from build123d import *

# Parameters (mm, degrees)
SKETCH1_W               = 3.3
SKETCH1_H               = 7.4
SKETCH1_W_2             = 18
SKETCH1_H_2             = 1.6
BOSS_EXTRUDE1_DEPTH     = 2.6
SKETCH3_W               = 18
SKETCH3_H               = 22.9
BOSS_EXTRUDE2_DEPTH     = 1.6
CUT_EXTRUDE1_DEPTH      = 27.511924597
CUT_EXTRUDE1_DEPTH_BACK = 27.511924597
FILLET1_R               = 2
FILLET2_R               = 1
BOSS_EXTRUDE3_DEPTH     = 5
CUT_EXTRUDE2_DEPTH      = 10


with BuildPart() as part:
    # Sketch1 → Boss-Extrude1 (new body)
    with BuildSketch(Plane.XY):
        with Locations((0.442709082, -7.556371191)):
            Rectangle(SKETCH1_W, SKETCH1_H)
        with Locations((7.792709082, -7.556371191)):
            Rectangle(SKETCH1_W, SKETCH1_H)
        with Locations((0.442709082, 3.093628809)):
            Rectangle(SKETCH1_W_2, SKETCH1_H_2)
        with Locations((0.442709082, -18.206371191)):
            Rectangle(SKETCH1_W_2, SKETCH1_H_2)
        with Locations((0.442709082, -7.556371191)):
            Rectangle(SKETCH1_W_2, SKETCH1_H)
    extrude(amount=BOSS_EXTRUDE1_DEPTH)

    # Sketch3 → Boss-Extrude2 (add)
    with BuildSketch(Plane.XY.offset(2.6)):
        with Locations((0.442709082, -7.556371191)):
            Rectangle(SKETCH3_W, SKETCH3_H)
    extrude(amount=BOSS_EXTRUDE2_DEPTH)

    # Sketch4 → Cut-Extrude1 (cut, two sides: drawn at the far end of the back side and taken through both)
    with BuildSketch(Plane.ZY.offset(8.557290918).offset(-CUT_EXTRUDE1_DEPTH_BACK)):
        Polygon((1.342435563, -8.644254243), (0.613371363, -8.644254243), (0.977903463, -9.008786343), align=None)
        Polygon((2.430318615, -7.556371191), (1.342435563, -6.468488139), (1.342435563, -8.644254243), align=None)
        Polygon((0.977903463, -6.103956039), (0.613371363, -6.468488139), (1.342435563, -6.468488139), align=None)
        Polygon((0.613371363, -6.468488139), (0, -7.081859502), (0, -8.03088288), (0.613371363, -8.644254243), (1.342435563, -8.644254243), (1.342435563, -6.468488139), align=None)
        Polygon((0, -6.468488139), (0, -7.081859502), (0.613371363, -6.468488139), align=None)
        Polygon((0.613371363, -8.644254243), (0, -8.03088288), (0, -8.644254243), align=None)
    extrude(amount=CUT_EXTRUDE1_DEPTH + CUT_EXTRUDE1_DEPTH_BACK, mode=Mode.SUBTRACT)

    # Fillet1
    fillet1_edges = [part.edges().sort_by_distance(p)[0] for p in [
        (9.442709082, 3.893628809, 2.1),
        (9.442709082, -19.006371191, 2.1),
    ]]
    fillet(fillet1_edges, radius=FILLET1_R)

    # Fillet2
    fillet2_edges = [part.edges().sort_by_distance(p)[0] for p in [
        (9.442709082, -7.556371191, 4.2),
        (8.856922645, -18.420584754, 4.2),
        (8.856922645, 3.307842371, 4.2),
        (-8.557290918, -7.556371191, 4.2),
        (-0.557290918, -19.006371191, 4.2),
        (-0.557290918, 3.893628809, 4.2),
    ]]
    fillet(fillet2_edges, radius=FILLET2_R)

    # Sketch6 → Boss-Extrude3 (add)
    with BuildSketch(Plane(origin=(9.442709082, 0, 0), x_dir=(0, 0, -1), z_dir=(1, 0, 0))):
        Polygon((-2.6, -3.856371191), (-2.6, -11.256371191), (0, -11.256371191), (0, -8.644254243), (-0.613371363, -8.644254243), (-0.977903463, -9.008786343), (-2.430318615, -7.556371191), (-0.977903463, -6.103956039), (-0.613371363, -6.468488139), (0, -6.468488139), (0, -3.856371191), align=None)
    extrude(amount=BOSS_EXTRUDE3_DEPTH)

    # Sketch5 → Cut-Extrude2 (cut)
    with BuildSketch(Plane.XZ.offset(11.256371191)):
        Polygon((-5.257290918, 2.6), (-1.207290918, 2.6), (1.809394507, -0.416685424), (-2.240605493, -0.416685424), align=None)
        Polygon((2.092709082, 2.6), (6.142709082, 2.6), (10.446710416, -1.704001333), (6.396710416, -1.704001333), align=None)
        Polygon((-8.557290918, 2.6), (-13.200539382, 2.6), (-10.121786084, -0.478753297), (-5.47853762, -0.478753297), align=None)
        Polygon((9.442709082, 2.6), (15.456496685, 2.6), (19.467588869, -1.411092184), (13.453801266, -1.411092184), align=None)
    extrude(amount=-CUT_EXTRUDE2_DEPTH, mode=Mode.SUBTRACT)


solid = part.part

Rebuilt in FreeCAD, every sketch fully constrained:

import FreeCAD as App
import Part
import Sketcher
Q = App.Units.Quantity


def edges_at(feature, points):
    """Names of the edges that pass closest to the given points."""
    edges = feature.Shape.Edges
    near = lambda p: min(range(len(edges)), key=lambda i: edges[i].distToShape(Part.Vertex(*p))[0])
    return sorted({f"Edge{near(p) + 1}" for p in points})

doc = App.newDocument("Part")
body = doc.addObject("PartDesign::Body", "Body")
body.AllowCompound = True

# Sketch on XY plane
sketch1 = doc.addObject("Sketcher::SketchObject", "Sketch")
body.addObject(sketch1)
sketch1.AttachmentSupport = (doc.XY_Plane, [""])
sketch1.MapMode = "FlatFace"
sketch1.addGeometry([
    Part.LineSegment(App.Vector(9.4, -11.3, 0), App.Vector(9.4, -3.9, 0)),  # 0
    Part.LineSegment(App.Vector(9.4, -3.9, 0), App.Vector(-8.6, -3.9, 0)),  # 1
    Part.LineSegment(App.Vector(-8.6, -3.9, 0), App.Vector(-8.6, -11.3, 0)),  # 2
    Part.LineSegment(App.Vector(-8.6, -11.3, 0), App.Vector(9.4, -11.3, 0)),  # 3
    Part.LineSegment(App.Vector(-8.6, 3.9, 0), App.Vector(-8.6, 2.3, 0)),  # 4
    Part.LineSegment(App.Vector(-8.6, 2.3, 0), App.Vector(9.4, 2.3, 0)),  # 5
    Part.LineSegment(App.Vector(9.4, 2.3, 0), App.Vector(9.4, 3.9, 0)),  # 6
    Part.LineSegment(App.Vector(9.4, 3.9, 0), App.Vector(-8.6, 3.9, 0)),  # 7
    Part.LineSegment(App.Vector(-8.6, -17.4, 0), App.Vector(-8.6, -19, 0)),  # 8
    Part.LineSegment(App.Vector(-8.6, -19, 0), App.Vector(9.4, -19, 0)),  # 9
    Part.LineSegment(App.Vector(9.4, -19, 0), App.Vector(9.4, -17.4, 0)),  # 10
    Part.LineSegment(App.Vector(9.4, -17.4, 0), App.Vector(-8.6, -17.4, 0)),  # 11
], False)
sketch1.addConstraint([
    Sketcher.Constraint("Coincident", 0, 2, 1, 1),
    Sketcher.Constraint("Coincident", 1, 2, 2, 1),
    Sketcher.Constraint("Coincident", 2, 2, 3, 1),
    Sketcher.Constraint("Coincident", 3, 2, 0, 1),
    Sketcher.Constraint("Coincident", 4, 2, 5, 1),
    Sketcher.Constraint("Coincident", 5, 2, 6, 1),
    Sketcher.Constraint("Coincident", 6, 2, 7, 1),
    Sketcher.Constraint("Coincident", 7, 2, 4, 1),
    Sketcher.Constraint("Coincident", 8, 2, 9, 1),
    Sketcher.Constraint("Coincident", 9, 2, 10, 1),
    Sketcher.Constraint("Coincident", 10, 2, 11, 1),
    Sketcher.Constraint("Coincident", 11, 2, 8, 1),
    Sketcher.Constraint("Vertical", 0),
    Sketcher.Constraint("Horizontal", 1),
    Sketcher.Constraint("Vertical", 2),
    Sketcher.Constraint("Horizontal", 3),
    Sketcher.Constraint("Vertical", 4),
    Sketcher.Constraint("Horizontal", 5),
    Sketcher.Constraint("Vertical", 6),
    Sketcher.Constraint("Horizontal", 7),
    Sketcher.Constraint("Vertical", 8),
    Sketcher.Constraint("Horizontal", 9),
    Sketcher.Constraint("Vertical", 10),
    Sketcher.Constraint("Horizontal", 11),
    Sketcher.Constraint("Vertical", 2, 2, 4, 2),
    Sketcher.Constraint("Vertical", 3, 2, 5, 2),
    Sketcher.Constraint("Vertical", 7, 2, 8, 2),
    Sketcher.Constraint("Vertical", 6, 2, 9, 2),
    Sketcher.Constraint("Equal", 6, 8),
    Sketcher.Constraint("DistanceX", 1, 2, 1, 1, Q("18 mm")),
    Sketcher.Constraint("DistanceY", 0, 1, 0, 2, Q("7.4 mm")),
    Sketcher.Constraint("DistanceY", 4, 2, 4, 1, Q("1.6 mm")),
    Sketcher.Constraint("DistanceY", 8, 2, 4, 2, Q("21.3 mm")),
    Sketcher.Constraint("DistanceY", 1, 2, 4, 2, Q("6.15 mm")),
    Sketcher.Constraint("DistanceX", -1, 1, 0, 2, Q("9.442709 mm")),
    Sketcher.Constraint("DistanceY", 0, 2, -1, 1, Q("3.856371 mm")),
])
pad1 = doc.addObject("PartDesign::Pad", "Pad")
body.addObject(pad1)
pad1.Profile = sketch1
pad1.Length = 2.6

# Sketch on XY plane
sketch2 = doc.addObject("Sketcher::SketchObject", "Sketch001")
body.addObject(sketch2)
sketch2.AttachmentSupport = (doc.XY_Plane, [""])
sketch2.MapMode = "FlatFace"
sketch2.AttachmentOffset = App.Placement(App.Vector(0, 0, 2.6), App.Rotation())
sketch2.addGeometry([
    Part.LineSegment(App.Vector(-9, 4, 0), App.Vector(-9, -19, 0)),
    Part.LineSegment(App.Vector(-9, -19, 0), App.Vector(9, -19, 0)),
    Part.LineSegment(App.Vector(9, -19, 0), App.Vector(9, 4, 0)),
    Part.LineSegment(App.Vector(9, 4, 0), App.Vector(-9, 4, 0)),
], False)
sketch2.addConstraint([
    Sketcher.Constraint("Coincident", 0, 2, 1, 1),
    Sketcher.Constraint("Coincident", 1, 2, 2, 1),
    Sketcher.Constraint("Coincident", 2, 2, 3, 1),
    Sketcher.Constraint("Coincident", 3, 2, 0, 1),
    Sketcher.Constraint("Vertical", 0),
    Sketcher.Constraint("Horizontal", 1),
    Sketcher.Constraint("Vertical", 2),
    Sketcher.Constraint("Horizontal", 3),
    Sketcher.Constraint("DistanceX", 1, 1, 1, 2, Q("18 mm")),
    Sketcher.Constraint("DistanceY", 0, 2, 0, 1, Q("22.9 mm")),
    Sketcher.Constraint("DistanceX", 0, 2, -1, 1, Q("8.557291 mm")),
    Sketcher.Constraint("DistanceY", 0, 2, -1, 1, Q("19.006371 mm")),
])
pad2 = doc.addObject("PartDesign::Pad", "Pad001")
body.addObject(pad2)
pad2.Profile = sketch2
pad2.Length = 1.6

# Sketch on YZ plane
sketch3 = doc.addObject("Sketcher::SketchObject", "Sketch002")
body.addObject(sketch3)
sketch3.AttachmentSupport = (doc.YZ_Plane, [""])
sketch3.MapMode = "FlatFace"
sketch3.AttachmentOffset = App.Placement(App.Vector(0, 0, -8.557291), App.Rotation())
sketch3.addGeometry([
    Part.LineSegment(App.Vector(-9, 1, 0), App.Vector(-7.6, 2.4, 0)),  # 0
    Part.LineSegment(App.Vector(-7.6, 2.4, 0), App.Vector(-6.1, 1, 0)),  # 1
    Part.LineSegment(App.Vector(-6.1, 1, 0), App.Vector(-6.5, 0.6, 0)),  # 2
    Part.LineSegment(App.Vector(-6.5, 0.6, 0), App.Vector(-6.5, 0, 0)),  # 3
    Part.LineSegment(App.Vector(-6.5, 0, 0), App.Vector(-8.6, 0, 0)),  # 4
    Part.LineSegment(App.Vector(-8.6, 0, 0), App.Vector(-8.6, 0.6, 0)),  # 5
    Part.LineSegment(App.Vector(-8.6, 0.6, 0), App.Vector(-9, 1, 0)),  # 6
], False)
sketch3.addConstraint([
    Sketcher.Constraint("Coincident", 0, 2, 1, 1),
    Sketcher.Constraint("Coincident", 1, 2, 2, 1),
    Sketcher.Constraint("Coincident", 2, 2, 3, 1),
    Sketcher.Constraint("Coincident", 3, 2, 4, 1),
    Sketcher.Constraint("Coincident", 4, 2, 5, 1),
    Sketcher.Constraint("Coincident", 5, 2, 6, 1),
    Sketcher.Constraint("Coincident", 6, 2, 0, 1),
    Sketcher.Constraint("Vertical", 3),
    Sketcher.Constraint("Horizontal", 4),
    Sketcher.Constraint("Vertical", 5),
    Sketcher.Constraint("PointOnObject", 3, 2, -1),
    Sketcher.Constraint("Perpendicular", 0, 1),
    Sketcher.Constraint("Perpendicular", 1, 2),
    Sketcher.Constraint("Perpendicular", 2, 6),
    Sketcher.Constraint("Horizontal", 2, 2, 5, 2),
    Sketcher.Constraint("Horizontal", 1, 2, 6, 2),
    Sketcher.Constraint("Equal", 0, 1),
    Sketcher.Constraint("DistanceY", 3, 2, 3, 1, Q("0.613371 mm")),
    Sketcher.Constraint("DistanceX", 4, 2, 1, 2, Q("2.540298 mm")),
    Sketcher.Constraint("DistanceX", 4, 2, 4, 1, Q("2.175766 mm")),
    Sketcher.Constraint("DistanceX", 0, 2, -1, 1, Q("7.556371 mm")),
])
pocket1 = doc.addObject("PartDesign::Pocket", "Pocket")
body.addObject(pocket1)
pocket1.Profile = sketch3
pocket1.Type = "ThroughAll"
pocket1.Midplane = True
doc.recompute()

fillet = doc.addObject("PartDesign::Fillet", "Fillet")
body.addObject(fillet)
fillet.Base = (pocket1, edges_at(pocket1, [(9.443, 3.894, 2.1), (9.443, -19.006, 2.1)]))
fillet.Radius = 2
doc.recompute()

fillet2 = doc.addObject("PartDesign::Fillet", "Fillet001")
body.addObject(fillet2)
fillet2.Base = (fillet, edges_at(fillet, [
    (9.443, -7.556, 4.2),
    (8.857, -18.421, 4.2),
    (8.857, 3.308, 4.2),
    (-8.557, -7.556, 4.2),
    (-0.557, -19.006, 4.2),
    (-0.557, 3.894, 4.2),
]))
fillet2.Radius = 1

# Sketch on YZ plane
sketch4 = doc.addObject("Sketcher::SketchObject", "Sketch003")
body.addObject(sketch4)
sketch4.AttachmentSupport = (doc.YZ_Plane, [""])
sketch4.MapMode = "FlatFace"
sketch4.AttachmentOffset = App.Placement(App.Vector(0, 0, 9.442709), App.Rotation())
sketch4.addGeometry([
    Part.LineSegment(App.Vector(-3.9, 2.6, 0), App.Vector(-11.3, 2.6, 0)),  # 0
    Part.LineSegment(App.Vector(-11.3, 2.6, 0), App.Vector(-11.3, 0, 0)),  # 1
    Part.LineSegment(App.Vector(-11.3, 0, 0), App.Vector(-8.6, 0, 0)),  # 2
    Part.LineSegment(App.Vector(-8.6, 0, 0), App.Vector(-8.6, 0.6, 0)),  # 3
    Part.LineSegment(App.Vector(-8.6, 0.6, 0), App.Vector(-9, 1, 0)),  # 4
    Part.LineSegment(App.Vector(-9, 1, 0), App.Vector(-7.6, 2.4, 0)),  # 5
    Part.LineSegment(App.Vector(-7.6, 2.4, 0), App.Vector(-6.1, 1, 0)),  # 6
    Part.LineSegment(App.Vector(-6.1, 1, 0), App.Vector(-6.5, 0.6, 0)),  # 7
    Part.LineSegment(App.Vector(-6.5, 0.6, 0), App.Vector(-6.5, 0, 0)),  # 8
    Part.LineSegment(App.Vector(-6.5, 0, 0), App.Vector(-3.9, 0, 0)),  # 9
    Part.LineSegment(App.Vector(-3.9, 0, 0), App.Vector(-3.9, 2.6, 0)),  # 10
], False)
sketch4.addConstraint([
    Sketcher.Constraint("Coincident", 0, 2, 1, 1),
    Sketcher.Constraint("Coincident", 1, 2, 2, 1),
    Sketcher.Constraint("Coincident", 2, 2, 3, 1),
    Sketcher.Constraint("Coincident", 3, 2, 4, 1),
    Sketcher.Constraint("Coincident", 4, 2, 5, 1),
    Sketcher.Constraint("Coincident", 5, 2, 6, 1),
    Sketcher.Constraint("Coincident", 6, 2, 7, 1),
    Sketcher.Constraint("Coincident", 7, 2, 8, 1),
    Sketcher.Constraint("Coincident", 8, 2, 9, 1),
    Sketcher.Constraint("Coincident", 9, 2, 10, 1),
    Sketcher.Constraint("Coincident", 10, 2, 0, 1),
    Sketcher.Constraint("Horizontal", 0),
    Sketcher.Constraint("Vertical", 1),
    Sketcher.Constraint("Horizontal", 2),
    Sketcher.Constraint("Vertical", 3),
    Sketcher.Constraint("Vertical", 8),
    Sketcher.Constraint("Horizontal", 9),
    Sketcher.Constraint("Vertical", 10),
    Sketcher.Constraint("PointOnObject", 1, 2, -1),
    Sketcher.Constraint("PointOnObject", 8, 2, -1),
    Sketcher.Constraint("Perpendicular", 4, 5),
    Sketcher.Constraint("Perpendicular", 5, 6),
    Sketcher.Constraint("Perpendicular", 6, 7),
    Sketcher.Constraint("Horizontal", 4, 2, 6, 2),
    Sketcher.Constraint("Horizontal", 3, 2, 7, 2),
    Sketcher.Constraint("Equal", 2, 9),
    Sketcher.Constraint("Equal", 5, 6),
    Sketcher.Constraint("DistanceX", 0, 2, 0, 1, Q("7.4 mm")),
    Sketcher.Constraint("DistanceY", 1, 2, 1, 1, Q("2.6 mm")),
    Sketcher.Constraint("DistanceY", 3, 1, 3, 2, Q("0.613371 mm")),
    Sketcher.Constraint("DistanceX", 3, 2, 6, 2, Q("2.540298 mm")),
    Sketcher.Constraint("DistanceX", 2, 1, 2, 2, Q("2.612117 mm")),
    Sketcher.Constraint("DistanceX", 0, 2, -1, 1, Q("11.256371 mm")),
])
pad3 = doc.addObject("PartDesign::Pad", "Pad002")
body.addObject(pad3)
pad3.Profile = sketch4
pad3.Length = 5

# Sketch on XZ plane
sketch5 = doc.addObject("Sketcher::SketchObject", "Sketch004")
body.addObject(sketch5)
sketch5.AttachmentSupport = (doc.XZ_Plane, [""])
sketch5.MapMode = "FlatFace"
sketch5.AttachmentOffset = App.Placement(App.Vector(0, 0, 11.256371), App.Rotation())
sketch5.addGeometry([
    Part.LineSegment(App.Vector(-1.2, 2.6, 0), App.Vector(-5.3, 2.6, 0)),  # 0
    Part.LineSegment(App.Vector(-5.3, 2.6, 0), App.Vector(-2.2, -0.4, 0)),  # 1
    Part.LineSegment(App.Vector(-2.2, -0.4, 0), App.Vector(1.8, -0.4, 0)),  # 2
    Part.LineSegment(App.Vector(1.8, -0.4, 0), App.Vector(-1.2, 2.6, 0)),  # 3
    Part.LineSegment(App.Vector(6.1, 2.6, 0), App.Vector(2.1, 2.6, 0)),  # 4
    Part.LineSegment(App.Vector(2.1, 2.6, 0), App.Vector(6.4, -1.7, 0)),  # 5
    Part.LineSegment(App.Vector(6.4, -1.7, 0), App.Vector(10.4, -1.7, 0)),  # 6
    Part.LineSegment(App.Vector(10.4, -1.7, 0), App.Vector(6.1, 2.6, 0)),  # 7
    Part.LineSegment(App.Vector(-8.6, 2.6, 0), App.Vector(-13.2, 2.6, 0)),  # 8
    Part.LineSegment(App.Vector(-13.2, 2.6, 0), App.Vector(-10.1, -0.5, 0)),  # 9
    Part.LineSegment(App.Vector(-10.1, -0.5, 0), App.Vector(-5.5, -0.5, 0)),  # 10
    Part.LineSegment(App.Vector(-5.5, -0.5, 0), App.Vector(-8.6, 2.6, 0)),  # 11
    Part.LineSegment(App.Vector(15.5, 2.6, 0), App.Vector(9.4, 2.6, 0)),  # 12
    Part.LineSegment(App.Vector(9.4, 2.6, 0), App.Vector(13.5, -1.4, 0)),  # 13
    Part.LineSegment(App.Vector(13.5, -1.4, 0), App.Vector(19.5, -1.4, 0)),  # 14
    Part.LineSegment(App.Vector(19.5, -1.4, 0), App.Vector(15.5, 2.6, 0)),  # 15
], False)
sketch5.addConstraint([
    Sketcher.Constraint("Coincident", 0, 2, 1, 1),
    Sketcher.Constraint("Coincident", 1, 2, 2, 1),
    Sketcher.Constraint("Coincident", 2, 2, 3, 1),
    Sketcher.Constraint("Coincident", 3, 2, 0, 1),
    Sketcher.Constraint("Coincident", 4, 2, 5, 1),
    Sketcher.Constraint("Coincident", 5, 2, 6, 1),
    Sketcher.Constraint("Coincident", 6, 2, 7, 1),
    Sketcher.Constraint("Coincident", 7, 2, 4, 1),
    Sketcher.Constraint("Coincident", 8, 2, 9, 1),
    Sketcher.Constraint("Coincident", 9, 2, 10, 1),
    Sketcher.Constraint("Coincident", 10, 2, 11, 1),
    Sketcher.Constraint("Coincident", 11, 2, 8, 1),
    Sketcher.Constraint("Coincident", 12, 2, 13, 1),
    Sketcher.Constraint("Coincident", 13, 2, 14, 1),
    Sketcher.Constraint("Coincident", 14, 2, 15, 1),
    Sketcher.Constraint("Coincident", 15, 2, 12, 1),
    Sketcher.Constraint("Horizontal", 0),
    Sketcher.Constraint("Horizontal", 2),
    Sketcher.Constraint("Horizontal", 4),
    Sketcher.Constraint("Horizontal", 6),
    Sketcher.Constraint("Horizontal", 8),
    Sketcher.Constraint("Horizontal", 10),
    Sketcher.Constraint("Horizontal", 12),
    Sketcher.Constraint("Horizontal", 14),
    Sketcher.Constraint("Parallel", 1, 3),
    Sketcher.Constraint("Parallel", 3, 5),
    Sketcher.Constraint("Parallel", 5, 7),
    Sketcher.Constraint("Parallel", 7, 9),
    Sketcher.Constraint("Parallel", 9, 11),
    Sketcher.Constraint("Parallel", 11, 13),
    Sketcher.Constraint("Parallel", 13, 15),
    Sketcher.Constraint("Horizontal", 3, 2, 4, 2),
    Sketcher.Constraint("Horizontal", 7, 2, 8, 2),
    Sketcher.Constraint("Horizontal", 11, 2, 12, 2),
    Sketcher.Constraint("Equal", 2, 4),
    Sketcher.Constraint("Angle", 1, Q("-45 deg")),
    Sketcher.Constraint("DistanceX", 0, 2, 0, 1, Q("4.05 mm")),
    Sketcher.Constraint("DistanceY", -1, 1, 0, 2, Q("2.6 mm")),
    Sketcher.Constraint("DistanceX", 3, 2, 4, 2, Q("3.3 mm")),
    Sketcher.Constraint("DistanceX", 11, 2, 0, 2, Q("3.3 mm")),
    Sketcher.Constraint("DistanceX", 7, 2, 12, 2, Q("3.3 mm")),
    Sketcher.Constraint("DistanceY", 5, 2, -1, 1, Q("1.704001 mm")),
    Sketcher.Constraint("DistanceX", 8, 2, 8, 1, Q("4.643248 mm")),
    Sketcher.Constraint("DistanceX", -1, 1, 13, 2, Q("13.453801 mm")),
    Sketcher.Constraint("Distance", 13, Q("5.672541 mm")),
    Sketcher.Constraint("DistanceX", 12, 2, 12, 1, Q("6.013788 mm")),
    Sketcher.Constraint("DistanceX", 9, 2, 1, 2, Q("7.881181 mm")),
    Sketcher.Constraint("Distance", 1, Q("4.266237 mm")),
])
pocket2 = doc.addObject("PartDesign::Pocket", "Pocket001")
body.addObject(pocket2)
pocket2.Profile = sketch5
pocket2.Length = 10

doc.recompute()
